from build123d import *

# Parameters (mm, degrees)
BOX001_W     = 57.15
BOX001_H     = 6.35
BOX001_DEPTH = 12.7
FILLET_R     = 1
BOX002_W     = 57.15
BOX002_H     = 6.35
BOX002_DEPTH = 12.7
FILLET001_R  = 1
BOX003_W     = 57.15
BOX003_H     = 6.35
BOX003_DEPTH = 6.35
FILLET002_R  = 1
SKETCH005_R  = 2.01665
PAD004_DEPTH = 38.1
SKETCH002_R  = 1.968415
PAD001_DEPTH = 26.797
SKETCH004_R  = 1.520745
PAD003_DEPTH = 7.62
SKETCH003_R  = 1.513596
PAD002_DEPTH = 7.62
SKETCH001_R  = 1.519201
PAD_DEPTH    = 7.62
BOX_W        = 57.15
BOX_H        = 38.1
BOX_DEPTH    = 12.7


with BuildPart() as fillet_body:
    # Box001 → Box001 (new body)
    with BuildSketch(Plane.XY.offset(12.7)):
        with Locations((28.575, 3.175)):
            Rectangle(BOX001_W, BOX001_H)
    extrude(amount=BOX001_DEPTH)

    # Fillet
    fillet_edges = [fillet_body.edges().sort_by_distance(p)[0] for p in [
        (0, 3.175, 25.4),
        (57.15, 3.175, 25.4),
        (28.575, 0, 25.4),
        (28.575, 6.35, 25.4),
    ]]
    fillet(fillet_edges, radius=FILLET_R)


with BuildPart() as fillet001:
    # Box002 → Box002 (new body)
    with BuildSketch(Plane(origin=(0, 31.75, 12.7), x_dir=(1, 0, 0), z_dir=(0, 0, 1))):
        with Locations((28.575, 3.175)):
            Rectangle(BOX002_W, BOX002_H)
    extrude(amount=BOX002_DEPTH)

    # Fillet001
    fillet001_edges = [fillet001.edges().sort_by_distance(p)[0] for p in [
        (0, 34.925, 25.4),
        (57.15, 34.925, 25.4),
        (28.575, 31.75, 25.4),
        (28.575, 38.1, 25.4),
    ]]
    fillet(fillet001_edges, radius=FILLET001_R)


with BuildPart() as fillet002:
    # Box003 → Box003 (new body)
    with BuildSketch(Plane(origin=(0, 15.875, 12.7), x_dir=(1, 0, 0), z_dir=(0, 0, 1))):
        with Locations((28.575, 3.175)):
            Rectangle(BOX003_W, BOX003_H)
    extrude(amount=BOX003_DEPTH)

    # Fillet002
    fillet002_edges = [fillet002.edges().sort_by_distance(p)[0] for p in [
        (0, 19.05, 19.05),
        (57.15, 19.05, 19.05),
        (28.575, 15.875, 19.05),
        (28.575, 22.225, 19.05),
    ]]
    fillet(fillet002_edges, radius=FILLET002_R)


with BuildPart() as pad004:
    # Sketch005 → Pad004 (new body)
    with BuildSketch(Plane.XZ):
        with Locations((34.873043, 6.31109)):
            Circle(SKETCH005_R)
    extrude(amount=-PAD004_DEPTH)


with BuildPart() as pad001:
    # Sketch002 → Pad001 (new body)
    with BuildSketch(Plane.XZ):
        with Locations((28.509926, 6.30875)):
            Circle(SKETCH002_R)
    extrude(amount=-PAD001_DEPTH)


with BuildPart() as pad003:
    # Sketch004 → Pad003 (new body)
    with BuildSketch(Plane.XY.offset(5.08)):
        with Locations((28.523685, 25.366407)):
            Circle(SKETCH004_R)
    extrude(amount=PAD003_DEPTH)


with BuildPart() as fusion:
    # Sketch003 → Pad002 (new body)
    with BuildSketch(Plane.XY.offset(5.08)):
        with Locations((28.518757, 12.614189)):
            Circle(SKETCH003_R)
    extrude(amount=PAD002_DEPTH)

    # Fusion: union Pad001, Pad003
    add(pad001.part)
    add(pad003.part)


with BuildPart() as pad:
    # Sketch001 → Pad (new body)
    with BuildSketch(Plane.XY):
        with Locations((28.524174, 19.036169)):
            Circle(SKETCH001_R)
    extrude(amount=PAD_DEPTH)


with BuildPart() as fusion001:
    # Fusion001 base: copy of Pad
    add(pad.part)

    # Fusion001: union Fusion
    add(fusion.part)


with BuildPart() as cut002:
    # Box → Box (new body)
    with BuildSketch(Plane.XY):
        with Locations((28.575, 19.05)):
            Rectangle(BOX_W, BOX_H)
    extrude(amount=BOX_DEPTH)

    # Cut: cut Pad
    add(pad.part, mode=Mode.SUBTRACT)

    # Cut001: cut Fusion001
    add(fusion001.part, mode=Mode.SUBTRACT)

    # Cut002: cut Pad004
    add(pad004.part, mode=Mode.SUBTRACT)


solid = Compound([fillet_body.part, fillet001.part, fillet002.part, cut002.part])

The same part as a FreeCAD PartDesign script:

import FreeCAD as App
import Part
import Sketcher
from FreeCAD import Vector
Q = App.Units.Quantity


def edges_at(feature, points):
    """Names of the edges that pass closest to the given points."""
    edges = feature.Shape.Edges
    near = lambda p: min(range(len(edges)), key=lambda i: edges[i].distToShape(Part.Vertex(*p))[0])
    return sorted({f"Edge{near(p) + 1}" for p in points})


def add_polygon(sketch, points):
    """Adds a closed chain of lines whose ends are joined by coincident constraints."""
    first, n = sketch.GeometryCount, len(points)
    for a, b in zip(points, points[1:] + points[:1]):
        sketch.addGeometry(Part.LineSegment(App.Vector(*a, 0), App.Vector(*b, 0)), False)
    for i in range(n):
        sketch.addConstraint(Sketcher.Constraint("Coincident", first + i, 2, first + (i + 1) % n, 1))

doc = App.newDocument("Part")
body = doc.addObject("PartDesign::Body", "Body")

sketch1 = body.newObject("Sketcher::SketchObject", "Sketch")
sketch1.AttachmentSupport = (doc.getObject("XY_Plane"), [""])
sketch1.MapMode = "FlatFace"
sketch1.AttachmentOffset = App.Placement(Vector(0, 0, 0.5 * 25.4), App.Rotation())
add_polygon(sketch1, [(0, 6.35), (0, 0), (57.15, 0), (57.15, 6.35)])
sketch1.addConstraint(Sketcher.Constraint("Vertical", 0))
sketch1.addConstraint(Sketcher.Constraint("Horizontal", 1))
sketch1.addConstraint(Sketcher.Constraint("Vertical", 2))
sketch1.addConstraint(Sketcher.Constraint("Horizontal", 3))
sketch1.addConstraint(Sketcher.Constraint("Coincident", 0, 2, -1, 1))
sketch1.addConstraint(Sketcher.Constraint("DistanceX", 1, 1, 1, 2, Q("2.25 in")))
sketch1.addConstraint(Sketcher.Constraint("DistanceY", 0, 2, 0, 1, Q("0.25 in")))
pad1 = body.newObject("PartDesign::Pad", "Pad")
pad1.Profile = sketch1
pad1.Length = Q("0.5 in")
doc.recompute()

fillet = body.newObject("PartDesign::Fillet", "Fillet")
fillet.Base = (pad1, edges_at(pad1, [
    (0, 3.175, 25.4),
    (57.15, 3.175, 25.4),
    (28.575, 0, 25.4),
    (28.575, 6.35, 25.4),
]))
fillet.Radius = 1
body2 = doc.addObject("PartDesign::Body", "Body001")

sketch2 = body2.newObject("Sketcher::SketchObject", "Sketch001")
sketch2.AttachmentSupport = (doc.getObject("XY_Plane001"), [""])
sketch2.MapMode = "FlatFace"
sketch2.AttachmentOffset = App.Placement(Vector(0, 0, 0.5 * 25.4), App.Rotation())
add_polygon(sketch2, [(0, 38.1), (0, 31.75), (57.15, 31.75), (57.15, 38.1)])
sketch2.addConstraint(Sketcher.Constraint("Vertical", 0))
sketch2.addConstraint(Sketcher.Constraint("Horizontal", 1))
sketch2.addConstraint(Sketcher.Constraint("Vertical", 2))
sketch2.addConstraint(Sketcher.Constraint("Horizontal", 3))
sketch2.addConstraint(Sketcher.Constraint("PointOnObject", 0, 2, -2))
sketch2.addConstraint(Sketcher.Constraint("DistanceX", 1, 1, 1, 2, Q("2.25 in")))
sketch2.addConstraint(Sketcher.Constraint("DistanceY", 0, 2, 0, 1, Q("0.25 in")))
sketch2.addConstraint(Sketcher.Constraint("DistanceY", -1, 1, 2, 2, Q("1.5 in")))
pad2 = body2.newObject("PartDesign::Pad", "Pad001")
pad2.Profile = sketch2
pad2.Length = Q("0.5 in")
doc.recompute()

fillet2 = body2.newObject("PartDesign::Fillet", "Fillet001")
fillet2.Base = (pad2, edges_at(pad2, [
    (0, 34.925, 25.4),
    (57.15, 34.925, 25.4),
    (28.575, 31.75, 25.4),
    (28.575, 38.1, 25.4),
]))
fillet2.Radius = 1
body3 = doc.addObject("PartDesign::Body", "Body002")

sketch3 = body3.newObject("Sketcher::SketchObject", "Sketch002")
sketch3.AttachmentSupport = (doc.getObject("XY_Plane002"), [""])
sketch3.MapMode = "FlatFace"
sketch3.AttachmentOffset = App.Placement(Vector(0, 0, 0.5 * 25.4), App.Rotation())
add_polygon(sketch3, [(0, 22.225), (0, 15.875), (57.15, 15.875), (57.15, 22.225)])
sketch3.addConstraint(Sketcher.Constraint("Vertical", 0))
sketch3.addConstraint(Sketcher.Constraint("Horizontal", 1))
sketch3.addConstraint(Sketcher.Constraint("Vertical", 2))
sketch3.addConstraint(Sketcher.Constraint("Horizontal", 3))
sketch3.addConstraint(Sketcher.Constraint("PointOnObject", 0, 2, -2))
sketch3.addConstraint(Sketcher.Constraint("DistanceX", 1, 1, 1, 2, Q("2.25 in")))
sketch3.addConstraint(Sketcher.Constraint("DistanceY", 0, 2, 0, 1, Q("0.25 in")))
sketch3.addConstraint(Sketcher.Constraint("DistanceY", -1, 1, 0, 2, Q("0.625 in")))
pad3 = body3.newObject("PartDesign::Pad", "Pad002")
pad3.Profile = sketch3
pad3.Length = Q("0.25 in")
doc.recompute()

fillet3 = body3.newObject("PartDesign::Fillet", "Fillet002")
fillet3.Base = (pad3, edges_at(pad3, [
    (0, 19.05, 19.05),
    (57.15, 19.05, 19.05),
    (28.575, 15.875, 19.05),
    (28.575, 22.225, 19.05),
]))
fillet3.Radius = 1
body4 = doc.addObject("PartDesign::Body", "Body003")

sketch4 = body4.newObject("Sketcher::SketchObject", "Sketch003")
sketch4.AttachmentSupport = (doc.getObject("XZ_Plane003"), [""])
sketch4.MapMode = "FlatFace"
sketch4.addGeometry(Part.Circle(Vector(34.873043, 6.31109, 0), Vector(0, 0, 1), 2.01665), False)
sketch4.addConstraint(Sketcher.Constraint("Diameter", 0, Q("4.0333 mm")))
sketch4.addConstraint(Sketcher.Constraint("DistanceY", -1, 1, 0, 3, Q("6.31109 mm")))
sketch4.addConstraint(Sketcher.Constraint("DistanceX", -1, 1, 0, 3, Q("34.873043 mm")))
pad4 = body4.newObject("PartDesign::Pad", "Pad003")
pad4.Profile = sketch4
pad4.Length = Q("1.5 in")
pad4.Reversed = True
body5 = doc.addObject("PartDesign::Body", "Body004")

sketch5 = body5.newObject("Sketcher::SketchObject", "Sketch004")
sketch5.AttachmentSupport = (doc.getObject("XZ_Plane004"), [""])
sketch5.MapMode = "FlatFace"
sketch5.addGeometry(Part.Circle(Vector(28.509926, 6.30875, 0), Vector(0, 0, 1), 1.968415), False)
sketch5.addConstraint(Sketcher.Constraint("Diameter", 0, Q("3.93683 mm")))
sketch5.addConstraint(Sketcher.Constraint("DistanceY", -1, 1, 0, 3, Q("6.30875 mm")))
sketch5.addConstraint(Sketcher.Constraint("DistanceX", -1, 1, 0, 3, Q("28.509926 mm")))
pad5 = body5.newObject("PartDesign::Pad", "Pad004")
pad5.Profile = sketch5
pad5.Length = Q("1.055 in")
pad5.Reversed = True
body6 = doc.addObject("PartDesign::Body", "Body005")

sketch6 = body6.newObject("Sketcher::SketchObject", "Sketch005")
sketch6.AttachmentSupport = (doc.getObject("XY_Plane005"), [""])
sketch6.MapMode = "FlatFace"
sketch6.AttachmentOffset = App.Placement(Vector(0, 0, 0.2 * 25.4), App.Rotation())
sketch6.addGeometry(Part.Circle(Vector(28.523685, 25.366407, 0), Vector(0, 0, 1), 1.520745), False)
sketch6.addConstraint(Sketcher.Constraint("Diameter", 0, Q("3.04149 mm")))
sketch6.addConstraint(Sketcher.Constraint("DistanceX", -1, 1, 0, 3, Q("28.523685 mm")))
sketch6.addConstraint(Sketcher.Constraint("DistanceY", -1, 1, 0, 3, Q("25.366407 mm")))
pad6 = body6.newObject("PartDesign::Pad", "Pad005")
pad6.Profile = sketch6
pad6.Length = Q("0.3 in")
body7 = doc.addObject("PartDesign::Body", "Body006")

sketch7 = body7.newObject("Sketcher::SketchObject", "Sketch006")
sketch7.AttachmentSupport = (doc.getObject("XY_Plane006"), [""])
sketch7.MapMode = "FlatFace"
sketch7.AttachmentOffset = App.Placement(Vector(0, 0, 0.2 * 25.4), App.Rotation())
sketch7.addGeometry(Part.Circle(Vector(28.518757, 12.614189, 0), Vector(0, 0, 1), 1.513596), False)
sketch7.addConstraint(Sketcher.Constraint("Diameter", 0, Q("3.027192 mm")))
sketch7.addConstraint(Sketcher.Constraint("DistanceY", -1, 1, 0, 3, Q("12.614189 mm")))
sketch7.addConstraint(Sketcher.Constraint("DistanceX", -1, 1, 0, 3, Q("28.518757 mm")))
pad7 = body7.newObject("PartDesign::Pad", "Pad006")
pad7.Profile = sketch7
pad7.Length = Q("0.3 in")
doc.recompute()

boolean = body7.newObject("PartDesign::Boolean", "Boolean")
boolean.Type = "Fuse"
boolean.addObjects([body5])
doc.recompute()

boolean2 = body7.newObject("PartDesign::Boolean", "Boolean001")
boolean2.Type = "Fuse"
boolean2.addObjects([body6])
body8 = doc.addObject("PartDesign::Body", "Body007")

sketch8 = body8.newObject("Sketcher::SketchObject", "Sketch007")
sketch8.AttachmentSupport = (doc.getObject("XY_Plane007"), [""])
sketch8.MapMode = "FlatFace"
sketch8.addGeometry(Part.Circle(Vector(28.524174, 19.036169, 0), Vector(0, 0, 1), 1.519201), False)
sketch8.addConstraint(Sketcher.Constraint("Diameter", 0, Q("3.038402 mm")))
sketch8.addConstraint(Sketcher.Constraint("DistanceY", -1, 1, 0, 3, Q("19.036169 mm")))
sketch8.addConstraint(Sketcher.Constraint("DistanceX", -1, 1, 0, 3, Q("28.524174 mm")))
pad8 = body8.newObject("PartDesign::Pad", "Pad007")
pad8.Profile = sketch8
pad8.Length = Q("0.3 in")
body9 = doc.addObject("PartDesign::Body", "Body008")
doc.recompute()

body9.BaseFeature = body8
doc.recompute()

boolean3 = body9.newObject("PartDesign::Boolean", "Boolean002")
boolean3.Type = "Fuse"
boolean3.addObjects([body7])
body10 = doc.addObject("PartDesign::Body", "Body009")

sketch9 = body10.newObject("Sketcher::SketchObject", "Sketch008")
sketch9.AttachmentSupport = (doc.getObject("XY_Plane009"), [""])
sketch9.MapMode = "FlatFace"
add_polygon(sketch9, [(0, 38.1), (0, 0), (57.15, 0), (57.15, 38.1)])
sketch9.addConstraint(Sketcher.Constraint("Vertical", 0))
sketch9.addConstraint(Sketcher.Constraint("Horizontal", 1))
sketch9.addConstraint(Sketcher.Constraint("Vertical", 2))
sketch9.addConstraint(Sketcher.Constraint("Horizontal", 3))
sketch9.addConstraint(Sketcher.Constraint("Coincident", 0, 2, -1, 1))
sketch9.addConstraint(Sketcher.Constraint("DistanceY", 0, 2, 0, 1, Q("1.5 in")))
sketch9.addConstraint(Sketcher.Constraint("DistanceX", 1, 1, 1, 2, Q("2.25 in")))
pad9 = body10.newObject("PartDesign::Pad", "Pad008")
pad9.Profile = sketch9
pad9.Length = Q("0.5 in")
doc.recompute()

boolean4 = body10.newObject("PartDesign::Boolean", "Boolean003")
boolean4.Type = "Cut"
boolean4.addObjects([body8])
doc.recompute()

boolean5 = body10.newObject("PartDesign::Boolean", "Boolean004")
boolean5.Type = "Cut"
boolean5.addObjects([body9])
doc.recompute()

boolean6 = body10.newObject("PartDesign::Boolean", "Boolean005")
boolean6.Type = "Cut"
boolean6.addObjects([body4])

doc.recompute()
